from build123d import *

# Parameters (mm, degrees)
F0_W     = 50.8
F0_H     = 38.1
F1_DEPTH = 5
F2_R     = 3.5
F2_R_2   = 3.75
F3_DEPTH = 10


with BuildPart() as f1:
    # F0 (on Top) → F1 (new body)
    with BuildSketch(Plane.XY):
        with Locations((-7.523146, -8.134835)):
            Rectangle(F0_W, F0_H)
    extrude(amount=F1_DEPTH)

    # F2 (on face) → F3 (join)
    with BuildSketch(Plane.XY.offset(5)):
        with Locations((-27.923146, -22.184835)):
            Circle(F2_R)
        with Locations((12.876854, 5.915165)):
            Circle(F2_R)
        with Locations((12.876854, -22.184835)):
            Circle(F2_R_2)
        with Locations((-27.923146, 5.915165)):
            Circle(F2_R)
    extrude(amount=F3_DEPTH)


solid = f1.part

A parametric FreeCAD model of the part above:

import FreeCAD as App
import Part
import Sketcher

doc = App.newDocument("Part")
body = doc.addObject("PartDesign::Body", "Body")

sketch1 = doc.addObject("Sketcher::SketchObject", "Sketch")
body.addObject(sketch1)
sketch1.AttachmentSupport = (doc.XY_Plane, [""])
sketch1.MapMode = "FlatFace"
sketch1.addGeometry([
    Part.LineSegment(App.Vector(-33, 11, 0), App.Vector(-33, -27, 0)),
    Part.LineSegment(App.Vector(-33, -27, 0), App.Vector(18, -27, 0)),
    Part.LineSegment(App.Vector(18, -27, 0), App.Vector(18, 11, 0)),
    Part.LineSegment(App.Vector(18, 11, 0), App.Vector(-33, 11, 0)),
], False)
sketch1.addConstraint([
    Sketcher.Constraint("Coincident", 0, 2, 1, 1),
    Sketcher.Constraint("Coincident", 1, 2, 2, 1),
    Sketcher.Constraint("Coincident", 2, 2, 3, 1),
    Sketcher.Constraint("Coincident", 3, 2, 0, 1),
    Sketcher.Constraint("Vertical", 0),
    Sketcher.Constraint("Horizontal", 1),
    Sketcher.Constraint("Vertical", 2),
    Sketcher.Constraint("Horizontal", 3),
    Sketcher.Constraint("DistanceX", 1, 1, 1, 2, 50.8),
    Sketcher.Constraint("DistanceY", 0, 2, 0, 1, 38.1),
    Sketcher.Constraint("DistanceX", 0, 2, -1, 1, 32.923146),
    Sketcher.Constraint("DistanceY", 0, 2, -1, 1, 27.184835),
])
pad1 = doc.addObject("PartDesign::Pad", "Pad")
body.addObject(pad1)
pad1.Profile = sketch1
pad1.Length = 5

sketch2 = doc.addObject("Sketcher::SketchObject", "Sketch001")
body.addObject(sketch2)
sketch2.AttachmentSupport = (doc.XY_Plane, [""])
sketch2.MapMode = "FlatFace"
sketch2.AttachmentOffset = App.Placement(App.Vector(0, 0, 5), App.Rotation())
sketch2.addGeometry([
    Part.Circle(App.Vector(-27.9, -22.2, 0), App.Vector(0, 0, 1), 3.5),
    Part.Circle(App.Vector(12.9, 5.9, 0), App.Vector(0, 0, 1), 3.5),
    Part.Circle(App.Vector(12.9, -22.2, 0), App.Vector(0, 0, 1), 3.8),
    Part.Circle(App.Vector(-27.9, 5.9, 0), App.Vector(0, 0, 1), 3.5),
], False)
sketch2.addConstraint([
    Sketcher.Constraint("Equal", 0, 1),
    Sketcher.Constraint("Equal", 1, 3),
    Sketcher.Constraint("Horizontal", 0, 3, 2, 3),
    Sketcher.Constraint("Horizontal", 1, 3, 3, 3),
    Sketcher.Constraint("Vertical", 1, 3, 2, 3),
    Sketcher.Constraint("Vertical", 0, 3, 3, 3),
    Sketcher.Constraint("Diameter", 0, 7.0),
    Sketcher.Constraint("Diameter", 2, 7.5),
    Sketcher.Constraint("DistanceX", 0, 3, 1, 3, 40.8),
    Sketcher.Constraint("DistanceY", 0, 3, 1, 3, 28.1),
    Sketcher.Constraint("DistanceX", 0, 3, -1, 1, 27.923146),
    Sketcher.Constraint("DistanceY", 0, 3, -1, 1, 22.184835),
])
pad2 = doc.addObject("PartDesign::Pad", "Pad001")
body.addObject(pad2)
pad2.Profile = sketch2
pad2.Length = 10

doc.recompute()
